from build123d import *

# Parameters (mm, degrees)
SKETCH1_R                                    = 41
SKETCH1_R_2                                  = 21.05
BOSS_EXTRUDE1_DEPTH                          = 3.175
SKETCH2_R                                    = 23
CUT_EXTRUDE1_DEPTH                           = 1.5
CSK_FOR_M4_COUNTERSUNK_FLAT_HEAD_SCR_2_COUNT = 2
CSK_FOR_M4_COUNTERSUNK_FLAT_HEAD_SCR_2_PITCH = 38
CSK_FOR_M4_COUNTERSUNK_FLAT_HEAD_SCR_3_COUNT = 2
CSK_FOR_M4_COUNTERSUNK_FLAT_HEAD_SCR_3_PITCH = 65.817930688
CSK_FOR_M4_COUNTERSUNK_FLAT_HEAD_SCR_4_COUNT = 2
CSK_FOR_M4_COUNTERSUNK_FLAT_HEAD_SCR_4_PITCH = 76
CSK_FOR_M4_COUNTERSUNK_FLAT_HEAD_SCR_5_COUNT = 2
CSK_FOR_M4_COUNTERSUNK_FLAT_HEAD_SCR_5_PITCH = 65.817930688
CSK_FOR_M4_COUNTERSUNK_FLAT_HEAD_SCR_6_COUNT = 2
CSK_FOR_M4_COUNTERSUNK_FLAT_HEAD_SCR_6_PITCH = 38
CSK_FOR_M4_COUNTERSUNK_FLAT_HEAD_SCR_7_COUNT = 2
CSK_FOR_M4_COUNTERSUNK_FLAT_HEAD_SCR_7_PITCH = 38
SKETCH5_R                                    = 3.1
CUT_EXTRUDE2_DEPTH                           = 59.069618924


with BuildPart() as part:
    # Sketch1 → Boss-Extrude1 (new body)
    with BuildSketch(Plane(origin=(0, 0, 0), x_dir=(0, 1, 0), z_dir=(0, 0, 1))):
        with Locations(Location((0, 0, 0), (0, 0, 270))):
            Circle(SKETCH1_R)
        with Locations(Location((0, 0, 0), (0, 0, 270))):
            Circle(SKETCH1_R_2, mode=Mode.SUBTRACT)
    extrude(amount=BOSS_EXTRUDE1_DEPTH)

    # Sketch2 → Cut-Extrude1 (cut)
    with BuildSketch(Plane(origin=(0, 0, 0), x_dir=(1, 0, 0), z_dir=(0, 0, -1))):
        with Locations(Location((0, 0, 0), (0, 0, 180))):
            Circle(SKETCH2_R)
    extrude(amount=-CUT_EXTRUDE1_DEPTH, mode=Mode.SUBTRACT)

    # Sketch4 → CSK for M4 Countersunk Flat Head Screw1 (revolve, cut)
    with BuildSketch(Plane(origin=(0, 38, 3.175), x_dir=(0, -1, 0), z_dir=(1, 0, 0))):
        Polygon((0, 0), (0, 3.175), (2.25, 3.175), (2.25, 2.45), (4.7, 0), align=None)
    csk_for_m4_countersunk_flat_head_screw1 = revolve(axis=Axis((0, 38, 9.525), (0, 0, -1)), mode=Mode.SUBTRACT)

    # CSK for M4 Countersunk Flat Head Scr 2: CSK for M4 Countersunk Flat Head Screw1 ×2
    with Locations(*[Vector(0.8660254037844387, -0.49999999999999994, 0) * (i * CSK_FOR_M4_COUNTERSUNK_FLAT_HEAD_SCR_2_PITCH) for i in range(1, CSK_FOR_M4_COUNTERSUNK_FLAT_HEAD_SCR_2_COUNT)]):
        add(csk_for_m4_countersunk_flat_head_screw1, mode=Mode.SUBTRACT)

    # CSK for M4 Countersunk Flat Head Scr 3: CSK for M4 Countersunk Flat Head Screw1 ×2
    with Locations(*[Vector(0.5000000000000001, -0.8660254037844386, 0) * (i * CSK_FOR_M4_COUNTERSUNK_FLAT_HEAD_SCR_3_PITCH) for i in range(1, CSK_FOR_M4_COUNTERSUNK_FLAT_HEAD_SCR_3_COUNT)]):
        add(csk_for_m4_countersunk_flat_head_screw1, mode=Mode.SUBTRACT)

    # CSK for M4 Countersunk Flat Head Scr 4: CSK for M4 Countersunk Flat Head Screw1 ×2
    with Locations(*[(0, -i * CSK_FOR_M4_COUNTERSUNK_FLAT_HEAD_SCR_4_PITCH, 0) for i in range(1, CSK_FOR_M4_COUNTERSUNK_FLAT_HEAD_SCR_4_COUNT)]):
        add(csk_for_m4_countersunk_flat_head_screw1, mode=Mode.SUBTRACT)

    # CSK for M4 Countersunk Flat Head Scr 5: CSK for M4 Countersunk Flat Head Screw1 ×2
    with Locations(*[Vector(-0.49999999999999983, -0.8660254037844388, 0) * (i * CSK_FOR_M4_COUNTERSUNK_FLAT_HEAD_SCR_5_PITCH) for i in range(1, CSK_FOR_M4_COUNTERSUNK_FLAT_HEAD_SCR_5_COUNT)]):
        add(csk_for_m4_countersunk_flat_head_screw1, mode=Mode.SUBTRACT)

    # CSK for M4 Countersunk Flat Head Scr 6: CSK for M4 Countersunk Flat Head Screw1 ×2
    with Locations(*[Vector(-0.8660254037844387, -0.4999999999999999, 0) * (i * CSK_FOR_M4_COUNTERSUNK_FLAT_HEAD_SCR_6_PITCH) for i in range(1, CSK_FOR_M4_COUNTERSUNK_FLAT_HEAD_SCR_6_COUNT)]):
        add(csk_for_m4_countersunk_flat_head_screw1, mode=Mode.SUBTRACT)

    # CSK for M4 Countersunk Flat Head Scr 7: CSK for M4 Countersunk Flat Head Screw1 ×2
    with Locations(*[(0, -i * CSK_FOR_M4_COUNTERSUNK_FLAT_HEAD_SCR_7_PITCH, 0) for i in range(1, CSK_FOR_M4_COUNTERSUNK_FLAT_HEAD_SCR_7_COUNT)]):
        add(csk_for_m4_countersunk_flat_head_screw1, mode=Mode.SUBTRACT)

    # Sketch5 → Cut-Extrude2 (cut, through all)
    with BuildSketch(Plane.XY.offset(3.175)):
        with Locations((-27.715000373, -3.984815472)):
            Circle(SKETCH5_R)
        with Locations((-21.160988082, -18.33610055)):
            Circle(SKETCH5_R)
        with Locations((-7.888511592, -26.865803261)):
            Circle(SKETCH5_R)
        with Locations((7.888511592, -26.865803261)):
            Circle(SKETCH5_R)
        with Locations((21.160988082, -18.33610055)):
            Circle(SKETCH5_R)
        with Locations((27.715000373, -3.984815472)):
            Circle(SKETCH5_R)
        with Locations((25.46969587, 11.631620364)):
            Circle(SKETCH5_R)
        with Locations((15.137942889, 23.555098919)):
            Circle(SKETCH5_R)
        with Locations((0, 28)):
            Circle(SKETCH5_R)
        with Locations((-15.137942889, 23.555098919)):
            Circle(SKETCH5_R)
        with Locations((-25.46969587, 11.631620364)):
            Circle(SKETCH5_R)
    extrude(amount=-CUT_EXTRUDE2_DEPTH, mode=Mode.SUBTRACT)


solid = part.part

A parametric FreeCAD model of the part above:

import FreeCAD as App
import Part
import Sketcher
Q = App.Units.Quantity


def add_polygon(sketch, points):
    """Adds a closed chain of lines whose ends are joined by coincident constraints."""
    first, n = sketch.GeometryCount, len(points)
    for a, b in zip(points, points[1:] + points[:1]):
        sketch.addGeometry(Part.LineSegment(App.Vector(*a, 0), App.Vector(*b, 0)), False)
    for i in range(n):
        sketch.addConstraint(Sketcher.Constraint("Coincident", first + i, 2, first + (i + 1) % n, 1))

doc = App.newDocument("Part")
params = doc.addObject("Spreadsheet::Sheet", "Params")
for row, (alias, value) in enumerate([
    ("sketch1_diameter", "82 mm"),
    ("sketch1_diameter2", "42.1 mm"),
    ("pad1_length", "3.175 mm"),
    ("sketch2_diameter", "46 mm"),
    ("pocket1_length", "1.5 mm"),
    ("sketch3_width", "4.7 mm"),
    ("sketch3_width2", "2.25 mm"),
    ("groove_angle", "360 deg"),
    ("linearpattern_pitch", "38 mm"),
    ("linearpattern2_pitch", "65.817931 mm"),
    ("linearpattern3_pitch", "76 mm"),
    ("linearpattern4_pitch", "65.817931 mm"),
    ("linearpattern5_pitch", "38 mm"),
    ("linearpattern6_pitch", "38 mm"),
    ("sketch4_diameter", "6.2 mm"),
], start=1):
    params.set(f"A{row}", alias)
    params.set(f"B{row}", "=" + value)
    params.setAlias(f"B{row}", alias)

body = doc.addObject("PartDesign::Body", "Body")

# Sketch on XY plane
sketch1 = body.newObject("Sketcher::SketchObject", "Sketch")
sketch1.AttachmentSupport = (doc.getObject("XY_Plane"), [""])
sketch1.MapMode = "FlatFace"
sketch1.addGeometry([
    Part.Circle(App.Vector(0, 0, 0), App.Vector(0, 0, 1), 41),
    Part.Circle(App.Vector(0, 0, 0), App.Vector(0, 0, 1), 21),
], False)
sketch1.addConstraint([
    Sketcher.Constraint("Coincident", 0, 3, -1, 1),
    Sketcher.Constraint("Coincident", 1, 3, -1, 1),
    Sketcher.Constraint("Diameter", 0, Q("82 mm")),
    Sketcher.Constraint("Diameter", 1, Q("42.1 mm")),
])
sketch1.setExpression("Constraints[2]", "Params.sketch1_diameter")
sketch1.setExpression("Constraints[3]", "Params.sketch1_diameter2")
pad1 = body.newObject("PartDesign::Pad", "Pad")
pad1.Profile = sketch1
pad1.setExpression("Length", "Params.pad1_length")

# Sketch on XY plane
sketch2 = body.newObject("Sketcher::SketchObject", "Sketch001")
sketch2.AttachmentSupport = (doc.getObject("XY_Plane"), [""])
sketch2.MapMode = "FlatFace"
sketch2.addGeometry(Part.Circle(App.Vector(0, 0, 0), App.Vector(0, 0, 1), 23), False)
sketch2.addConstraint([
    Sketcher.Constraint("Coincident", 0, 3, -1, 1),
    Sketcher.Constraint("Diameter", 0, Q("46 mm")),
])
sketch2.setExpression("Constraints[1]", "Params.sketch2_diameter")
pocket1 = body.newObject("PartDesign::Pocket", "Pocket")
pocket1.Profile = sketch2
pocket1.setExpression("Length", "Params.pocket1_length")
pocket1.Reversed = True

# Sketch on YZ plane
sketch3 = body.newObject("Sketcher::SketchObject", "Sketch002")
sketch3.AttachmentSupport = (doc.getObject("YZ_Plane"), [""])
sketch3.MapMode = "FlatFace"
add_polygon(sketch3, [(38, 0), (38, 3.2), (33.3, 3.2), (35.8, 0.7), (35.8, 0)])  # lines 0-4
sketch3.addGeometry(Part.LineSegment(App.Vector(38, 3.2, 0), App.Vector(38, 0, 0)), True)  # axis
sketch3.addConstraint([
    Sketcher.Constraint("Vertical", 0),
    Sketcher.Constraint("Horizontal", 1),
    Sketcher.Constraint("Vertical", 3),
    Sketcher.Constraint("Horizontal", 4),
    Sketcher.Constraint("Vertical", 5),
    Sketcher.Constraint("Coincident", 5, 1, 0, 2),
    Sketcher.Constraint("PointOnObject", 3, 2, -1),
    Sketcher.Constraint("PointOnObject", 5, 2, -1),
    Sketcher.Constraint("Angle", 2, Q("-45 deg")),
    Sketcher.Constraint("DistanceX", 1, 2, 1, 1, Q("4.7 mm")),
    Sketcher.Constraint("DistanceX", -1, 1, 0, 2, Q("38 mm")),
    Sketcher.Constraint("DistanceX", 4, 1, 4, 2, Q("2.25 mm")),
    Sketcher.Constraint("DistanceY", 0, 1, 0, 2, Q("3.175 mm")),
])
sketch3.setExpression("Constraints[14]", "Params.sketch3_width")
sketch3.setExpression("Constraints[16]", "Params.sketch3_width2")
groove = body.newObject("PartDesign::Groove", "Groove")
groove.Profile = sketch3
groove.ReferenceAxis = (sketch3, ["Axis0"])
groove.setExpression("Angle", "Params.groove_angle")
doc.recompute()

datumline = body.newObject("PartDesign::Line", "DatumLine")
datumline.Placement = App.Placement(App.Vector(0, 0, 0), App.Rotation(App.Vector(0, 0, 1), App.Vector(0.866025404, -0.5, 0)))
linearpattern = body.newObject("PartDesign::LinearPattern", "LinearPattern")
linearpattern.Originals = [groove]
linearpattern.Direction = (datumline, [""])
linearpattern.Mode = "offset"
linearpattern.setExpression("Offset", "Params.linearpattern_pitch")
linearpattern.Occurrences = 2
body.Tip = linearpattern
doc.recompute()

datumline2 = body.newObject("PartDesign::Line", "DatumLine001")
datumline2.Placement = App.Placement(App.Vector(0, 0, 0), App.Rotation(App.Vector(0, 0, 1), App.Vector(0.5, -0.866025404, 0)))
linearpattern2 = body.newObject("PartDesign::LinearPattern", "LinearPattern001")
linearpattern2.Originals = [groove]
linearpattern2.Direction = (datumline2, [""])
linearpattern2.Mode = "offset"
linearpattern2.setExpression("Offset", "Params.linearpattern2_pitch")
linearpattern2.Occurrences = 2
body.Tip = linearpattern2
doc.recompute()

linearpattern3 = body.newObject("PartDesign::LinearPattern", "LinearPattern002")
linearpattern3.Originals = [groove]
linearpattern3.Direction = (doc.getObject("Y_Axis"), [""])
linearpattern3.Mode = "offset"
linearpattern3.setExpression("Offset", "Params.linearpattern3_pitch")
linearpattern3.Occurrences = 2
linearpattern3.Reversed = True
body.Tip = linearpattern3
doc.recompute()

datumline3 = body.newObject("PartDesign::Line", "DatumLine002")
datumline3.Placement = App.Placement(App.Vector(0, 0, 0), App.Rotation(App.Vector(0, 0, 1), App.Vector(-0.5, -0.866025404, 0)))
linearpattern4 = body.newObject("PartDesign::LinearPattern", "LinearPattern003")
linearpattern4.Originals = [groove]
linearpattern4.Direction = (datumline3, [""])
linearpattern4.Mode = "offset"
linearpattern4.setExpression("Offset", "Params.linearpattern4_pitch")
linearpattern4.Occurrences = 2
body.Tip = linearpattern4
doc.recompute()

datumline4 = body.newObject("PartDesign::Line", "DatumLine003")
datumline4.Placement = App.Placement(App.Vector(0, 0, 0), App.Rotation(App.Vector(0, 0, 1), App.Vector(-0.866025404, -0.5, 0)))
linearpattern5 = body.newObject("PartDesign::LinearPattern", "LinearPattern004")
linearpattern5.Originals = [groove]
linearpattern5.Direction = (datumline4, [""])
linearpattern5.Mode = "offset"
linearpattern5.setExpression("Offset", "Params.linearpattern5_pitch")
linearpattern5.Occurrences = 2
body.Tip = linearpattern5
doc.recompute()

linearpattern6 = body.newObject("PartDesign::LinearPattern", "LinearPattern005")
linearpattern6.Originals = [groove]
linearpattern6.Direction = (doc.getObject("Y_Axis"), [""])
linearpattern6.Mode = "offset"
linearpattern6.setExpression("Offset", "Params.linearpattern6_pitch")
linearpattern6.Occurrences = 2
linearpattern6.Reversed = True
body.Tip = linearpattern6

# Sketch on XY plane
sketch4 = body.newObject("Sketcher::SketchObject", "Sketch003")
sketch4.AttachmentSupport = (doc.getObject("XY_Plane"), [""])
sketch4.MapMode = "FlatFace"
sketch4.AttachmentOffset = App.Placement(App.Vector(0, 0, 3.175), App.Rotation())
sketch4.addGeometry([
    Part.Circle(App.Vector(-27.7, -4, 0), App.Vector(0, 0, 1), 3.1),  # 0
    Part.Circle(App.Vector(-21.2, -18.3, 0), App.Vector(0, 0, 1), 3.1),  # 1
    Part.Circle(App.Vector(-7.9, -26.9, 0), App.Vector(0, 0, 1), 3.1),  # 2
    Part.Circle(App.Vector(7.9, -26.9, 0), App.Vector(0, 0, 1), 3.1),  # 3
    Part.Circle(App.Vector(21.2, -18.3, 0), App.Vector(0, 0, 1), 3.1),  # 4
    Part.Circle(App.Vector(27.7, -4, 0), App.Vector(0, 0, 1), 3.1),  # 5
    Part.Circle(App.Vector(25.5, 11.6, 0), App.Vector(0, 0, 1), 3.1),  # 6
    Part.Circle(App.Vector(15.1, 23.6, 0), App.Vector(0, 0, 1), 3.1),  # 7
    Part.Circle(App.Vector(0, 28, 0), App.Vector(0, 0, 1), 3.1),  # 8
    Part.Circle(App.Vector(-15.1, 23.6, 0), App.Vector(0, 0, 1), 3.1),  # 9
    Part.Circle(App.Vector(-25.5, 11.6, 0), App.Vector(0, 0, 1), 3.1),  # 10
], False)
sketch4.addConstraint([
    Sketcher.Constraint("Equal", 0, 1),
    Sketcher.Constraint("Equal", 1, 2),
    Sketcher.Constraint("Equal", 2, 3),
    Sketcher.Constraint("Equal", 3, 4),
    Sketcher.Constraint("Equal", 4, 5),
    Sketcher.Constraint("Equal", 5, 6),
    Sketcher.Constraint("Equal", 6, 7),
    Sketcher.Constraint("Equal", 7, 8),
    Sketcher.Constraint("Equal", 8, 9),
    Sketcher.Constraint("Equal", 9, 10),
    Sketcher.Constraint("Symmetric", 2, 3, 3, 3, -2),
    Sketcher.Constraint("Symmetric", 1, 3, 4, 3, -2),
    Sketcher.Constraint("Symmetric", 0, 3, 5, 3, -2),
    Sketcher.Constraint("Symmetric", 7, 3, 9, 3, -2),
    Sketcher.Constraint("Symmetric", 6, 3, 10, 3, -2),
    Sketcher.Constraint("PointOnObject", 8, 3, -2),
    Sketcher.Constraint("Diameter", 0, Q("6.2 mm")),
    Sketcher.Constraint("DistanceY", -1, 1, 8, 3, Q("28 mm")),
    Sketcher.Constraint("DistanceX", 0, 3, 5, 3, Q("55.430001 mm")),
    Sketcher.Constraint("DistanceY", 1, 3, -1, 1, Q("18.336101 mm")),
    Sketcher.Constraint("DistanceY", -1, 1, 7, 3, Q("23.555099 mm")),
    Sketcher.Constraint("DistanceX", 1, 3, 3, 3, Q("29.0495 mm")),
    Sketcher.Constraint("DistanceX", 1, 3, -1, 1, Q("21.160988 mm")),
    Sketcher.Constraint("DistanceY", -1, 1, 6, 3, Q("11.63162 mm")),
    Sketcher.Constraint("DistanceX", 3, 3, 7, 3, Q("7.249431 mm")),
    Sketcher.Constraint("DistanceX", 9, 3, 6, 3, Q("40.607639 mm")),
    Sketcher.Constraint("DistanceY", 0, 3, -1, 1, Q("3.984815 mm")),
    Sketcher.Constraint("DistanceY", 2, 3, -1, 1, Q("26.865803 mm")),
])
sketch4.setExpression("Constraints[16]", "Params.sketch4_diameter")
pocket2 = body.newObject("PartDesign::Pocket", "Pocket001")
pocket2.Profile = sketch4
pocket2.Type = "ThroughAll"

doc.recompute()
